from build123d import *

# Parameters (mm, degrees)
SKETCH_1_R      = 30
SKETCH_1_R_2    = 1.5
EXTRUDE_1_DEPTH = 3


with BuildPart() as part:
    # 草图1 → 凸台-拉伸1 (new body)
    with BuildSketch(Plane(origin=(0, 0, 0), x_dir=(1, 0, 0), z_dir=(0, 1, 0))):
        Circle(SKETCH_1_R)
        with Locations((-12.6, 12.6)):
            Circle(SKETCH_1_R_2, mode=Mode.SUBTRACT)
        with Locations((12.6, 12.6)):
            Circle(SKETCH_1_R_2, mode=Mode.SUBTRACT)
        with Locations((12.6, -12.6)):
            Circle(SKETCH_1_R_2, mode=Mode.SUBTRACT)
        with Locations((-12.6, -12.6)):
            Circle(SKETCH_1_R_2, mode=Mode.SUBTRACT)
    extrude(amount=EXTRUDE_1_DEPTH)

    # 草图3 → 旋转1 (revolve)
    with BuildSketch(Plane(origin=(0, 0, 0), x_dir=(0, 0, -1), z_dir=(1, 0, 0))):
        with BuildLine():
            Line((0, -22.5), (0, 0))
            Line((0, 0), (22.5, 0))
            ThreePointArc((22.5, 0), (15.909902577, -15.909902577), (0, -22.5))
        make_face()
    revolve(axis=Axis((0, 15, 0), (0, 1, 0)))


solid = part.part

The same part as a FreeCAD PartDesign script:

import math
import FreeCAD as App
import Part
import Sketcher

V = App.Vector
Q = App.Units.Quantity

doc = App.newDocument("Part")
body = doc.addObject("PartDesign::Body", "Body")

sketch1 = body.newObject("Sketcher::SketchObject", "Sketch")
sketch1.AttachmentSupport = (doc.getObject("XZ_Plane"), [""])
sketch1.MapMode = "FlatFace"
sketch1.addGeometry([
    Part.Circle(V(0, 0, 0), V(0, 0, 1), 30),
    Part.Circle(V(-12.6, 12.6, 0), V(0, 0, 1), 1.5),
    Part.Circle(V(12.6, 12.6, 0), V(0, 0, 1), 1.5),
    Part.Circle(V(-12.6, -12.6, 0), V(0, 0, 1), 1.5),
    Part.Circle(V(12.6, -12.6, 0), V(0, 0, 1), 1.5),
], False)
sketch1.addConstraint([
    Sketcher.Constraint("Coincident", 0, 3, -1, 1),
    Sketcher.Constraint("Equal", 1, 2),
    Sketcher.Constraint("Equal", 2, 3),
    Sketcher.Constraint("Equal", 3, 4),
    Sketcher.Constraint("Symmetric", 2, 3, 3, 3, -1, 1),
    Sketcher.Constraint("Symmetric", 1, 3, 4, 3, -1, 1),
    Sketcher.Constraint("Symmetric", 1, 3, 2, 3, -2),
    Sketcher.Constraint("Diameter", 0, Q("60 mm")),
    Sketcher.Constraint("Diameter", 1, Q("3 mm")),
    Sketcher.Constraint("DistanceX", 1, 3, -1, 1, Q("12.6 mm")),
    Sketcher.Constraint("DistanceY", -1, 1, 1, 3, Q("12.6 mm")),
])
pad1 = body.newObject("PartDesign::Pad", "Pad")
pad1.Profile = sketch1
pad1.Length = 3
pad1.Reversed = True

sketch2 = body.newObject("Sketcher::SketchObject", "Sketch001")
sketch2.AttachmentSupport = (doc.getObject("YZ_Plane"), [""])
sketch2.MapMode = "FlatFace"
sketch2.addGeometry([
    Part.LineSegment(V(0, 0, 0), V(-22, 0, 0)),
    Part.ArcOfCircle(Part.Circle(V(0, 0, 0), V(0, 0, 1), 22), math.radians(180), math.radians(270)),
    Part.LineSegment(V(0, -22, 0), V(0, 0, 0)),
], False)
sketch2.addConstraint([
    Sketcher.Constraint("Coincident", 0, 2, 1, 1),
    Sketcher.Constraint("Coincident", 1, 2, 2, 1),
    Sketcher.Constraint("Coincident", 2, 2, 0, 1),
    Sketcher.Constraint("Horizontal", 0),
    Sketcher.Constraint("Vertical", 2),
    Sketcher.Constraint("Coincident", 1, 3, -1, 1),
    Sketcher.Constraint("Coincident", 2, 2, -1, 1),
    Sketcher.Constraint("Radius", 1, Q("22.5 mm")),
])
revolution = body.newObject("PartDesign::Revolution", "Revolution")
revolution.Profile = sketch2
revolution.ReferenceAxis = (sketch2, ["H_Axis"])
revolution.Angle = 360

doc.recompute()
